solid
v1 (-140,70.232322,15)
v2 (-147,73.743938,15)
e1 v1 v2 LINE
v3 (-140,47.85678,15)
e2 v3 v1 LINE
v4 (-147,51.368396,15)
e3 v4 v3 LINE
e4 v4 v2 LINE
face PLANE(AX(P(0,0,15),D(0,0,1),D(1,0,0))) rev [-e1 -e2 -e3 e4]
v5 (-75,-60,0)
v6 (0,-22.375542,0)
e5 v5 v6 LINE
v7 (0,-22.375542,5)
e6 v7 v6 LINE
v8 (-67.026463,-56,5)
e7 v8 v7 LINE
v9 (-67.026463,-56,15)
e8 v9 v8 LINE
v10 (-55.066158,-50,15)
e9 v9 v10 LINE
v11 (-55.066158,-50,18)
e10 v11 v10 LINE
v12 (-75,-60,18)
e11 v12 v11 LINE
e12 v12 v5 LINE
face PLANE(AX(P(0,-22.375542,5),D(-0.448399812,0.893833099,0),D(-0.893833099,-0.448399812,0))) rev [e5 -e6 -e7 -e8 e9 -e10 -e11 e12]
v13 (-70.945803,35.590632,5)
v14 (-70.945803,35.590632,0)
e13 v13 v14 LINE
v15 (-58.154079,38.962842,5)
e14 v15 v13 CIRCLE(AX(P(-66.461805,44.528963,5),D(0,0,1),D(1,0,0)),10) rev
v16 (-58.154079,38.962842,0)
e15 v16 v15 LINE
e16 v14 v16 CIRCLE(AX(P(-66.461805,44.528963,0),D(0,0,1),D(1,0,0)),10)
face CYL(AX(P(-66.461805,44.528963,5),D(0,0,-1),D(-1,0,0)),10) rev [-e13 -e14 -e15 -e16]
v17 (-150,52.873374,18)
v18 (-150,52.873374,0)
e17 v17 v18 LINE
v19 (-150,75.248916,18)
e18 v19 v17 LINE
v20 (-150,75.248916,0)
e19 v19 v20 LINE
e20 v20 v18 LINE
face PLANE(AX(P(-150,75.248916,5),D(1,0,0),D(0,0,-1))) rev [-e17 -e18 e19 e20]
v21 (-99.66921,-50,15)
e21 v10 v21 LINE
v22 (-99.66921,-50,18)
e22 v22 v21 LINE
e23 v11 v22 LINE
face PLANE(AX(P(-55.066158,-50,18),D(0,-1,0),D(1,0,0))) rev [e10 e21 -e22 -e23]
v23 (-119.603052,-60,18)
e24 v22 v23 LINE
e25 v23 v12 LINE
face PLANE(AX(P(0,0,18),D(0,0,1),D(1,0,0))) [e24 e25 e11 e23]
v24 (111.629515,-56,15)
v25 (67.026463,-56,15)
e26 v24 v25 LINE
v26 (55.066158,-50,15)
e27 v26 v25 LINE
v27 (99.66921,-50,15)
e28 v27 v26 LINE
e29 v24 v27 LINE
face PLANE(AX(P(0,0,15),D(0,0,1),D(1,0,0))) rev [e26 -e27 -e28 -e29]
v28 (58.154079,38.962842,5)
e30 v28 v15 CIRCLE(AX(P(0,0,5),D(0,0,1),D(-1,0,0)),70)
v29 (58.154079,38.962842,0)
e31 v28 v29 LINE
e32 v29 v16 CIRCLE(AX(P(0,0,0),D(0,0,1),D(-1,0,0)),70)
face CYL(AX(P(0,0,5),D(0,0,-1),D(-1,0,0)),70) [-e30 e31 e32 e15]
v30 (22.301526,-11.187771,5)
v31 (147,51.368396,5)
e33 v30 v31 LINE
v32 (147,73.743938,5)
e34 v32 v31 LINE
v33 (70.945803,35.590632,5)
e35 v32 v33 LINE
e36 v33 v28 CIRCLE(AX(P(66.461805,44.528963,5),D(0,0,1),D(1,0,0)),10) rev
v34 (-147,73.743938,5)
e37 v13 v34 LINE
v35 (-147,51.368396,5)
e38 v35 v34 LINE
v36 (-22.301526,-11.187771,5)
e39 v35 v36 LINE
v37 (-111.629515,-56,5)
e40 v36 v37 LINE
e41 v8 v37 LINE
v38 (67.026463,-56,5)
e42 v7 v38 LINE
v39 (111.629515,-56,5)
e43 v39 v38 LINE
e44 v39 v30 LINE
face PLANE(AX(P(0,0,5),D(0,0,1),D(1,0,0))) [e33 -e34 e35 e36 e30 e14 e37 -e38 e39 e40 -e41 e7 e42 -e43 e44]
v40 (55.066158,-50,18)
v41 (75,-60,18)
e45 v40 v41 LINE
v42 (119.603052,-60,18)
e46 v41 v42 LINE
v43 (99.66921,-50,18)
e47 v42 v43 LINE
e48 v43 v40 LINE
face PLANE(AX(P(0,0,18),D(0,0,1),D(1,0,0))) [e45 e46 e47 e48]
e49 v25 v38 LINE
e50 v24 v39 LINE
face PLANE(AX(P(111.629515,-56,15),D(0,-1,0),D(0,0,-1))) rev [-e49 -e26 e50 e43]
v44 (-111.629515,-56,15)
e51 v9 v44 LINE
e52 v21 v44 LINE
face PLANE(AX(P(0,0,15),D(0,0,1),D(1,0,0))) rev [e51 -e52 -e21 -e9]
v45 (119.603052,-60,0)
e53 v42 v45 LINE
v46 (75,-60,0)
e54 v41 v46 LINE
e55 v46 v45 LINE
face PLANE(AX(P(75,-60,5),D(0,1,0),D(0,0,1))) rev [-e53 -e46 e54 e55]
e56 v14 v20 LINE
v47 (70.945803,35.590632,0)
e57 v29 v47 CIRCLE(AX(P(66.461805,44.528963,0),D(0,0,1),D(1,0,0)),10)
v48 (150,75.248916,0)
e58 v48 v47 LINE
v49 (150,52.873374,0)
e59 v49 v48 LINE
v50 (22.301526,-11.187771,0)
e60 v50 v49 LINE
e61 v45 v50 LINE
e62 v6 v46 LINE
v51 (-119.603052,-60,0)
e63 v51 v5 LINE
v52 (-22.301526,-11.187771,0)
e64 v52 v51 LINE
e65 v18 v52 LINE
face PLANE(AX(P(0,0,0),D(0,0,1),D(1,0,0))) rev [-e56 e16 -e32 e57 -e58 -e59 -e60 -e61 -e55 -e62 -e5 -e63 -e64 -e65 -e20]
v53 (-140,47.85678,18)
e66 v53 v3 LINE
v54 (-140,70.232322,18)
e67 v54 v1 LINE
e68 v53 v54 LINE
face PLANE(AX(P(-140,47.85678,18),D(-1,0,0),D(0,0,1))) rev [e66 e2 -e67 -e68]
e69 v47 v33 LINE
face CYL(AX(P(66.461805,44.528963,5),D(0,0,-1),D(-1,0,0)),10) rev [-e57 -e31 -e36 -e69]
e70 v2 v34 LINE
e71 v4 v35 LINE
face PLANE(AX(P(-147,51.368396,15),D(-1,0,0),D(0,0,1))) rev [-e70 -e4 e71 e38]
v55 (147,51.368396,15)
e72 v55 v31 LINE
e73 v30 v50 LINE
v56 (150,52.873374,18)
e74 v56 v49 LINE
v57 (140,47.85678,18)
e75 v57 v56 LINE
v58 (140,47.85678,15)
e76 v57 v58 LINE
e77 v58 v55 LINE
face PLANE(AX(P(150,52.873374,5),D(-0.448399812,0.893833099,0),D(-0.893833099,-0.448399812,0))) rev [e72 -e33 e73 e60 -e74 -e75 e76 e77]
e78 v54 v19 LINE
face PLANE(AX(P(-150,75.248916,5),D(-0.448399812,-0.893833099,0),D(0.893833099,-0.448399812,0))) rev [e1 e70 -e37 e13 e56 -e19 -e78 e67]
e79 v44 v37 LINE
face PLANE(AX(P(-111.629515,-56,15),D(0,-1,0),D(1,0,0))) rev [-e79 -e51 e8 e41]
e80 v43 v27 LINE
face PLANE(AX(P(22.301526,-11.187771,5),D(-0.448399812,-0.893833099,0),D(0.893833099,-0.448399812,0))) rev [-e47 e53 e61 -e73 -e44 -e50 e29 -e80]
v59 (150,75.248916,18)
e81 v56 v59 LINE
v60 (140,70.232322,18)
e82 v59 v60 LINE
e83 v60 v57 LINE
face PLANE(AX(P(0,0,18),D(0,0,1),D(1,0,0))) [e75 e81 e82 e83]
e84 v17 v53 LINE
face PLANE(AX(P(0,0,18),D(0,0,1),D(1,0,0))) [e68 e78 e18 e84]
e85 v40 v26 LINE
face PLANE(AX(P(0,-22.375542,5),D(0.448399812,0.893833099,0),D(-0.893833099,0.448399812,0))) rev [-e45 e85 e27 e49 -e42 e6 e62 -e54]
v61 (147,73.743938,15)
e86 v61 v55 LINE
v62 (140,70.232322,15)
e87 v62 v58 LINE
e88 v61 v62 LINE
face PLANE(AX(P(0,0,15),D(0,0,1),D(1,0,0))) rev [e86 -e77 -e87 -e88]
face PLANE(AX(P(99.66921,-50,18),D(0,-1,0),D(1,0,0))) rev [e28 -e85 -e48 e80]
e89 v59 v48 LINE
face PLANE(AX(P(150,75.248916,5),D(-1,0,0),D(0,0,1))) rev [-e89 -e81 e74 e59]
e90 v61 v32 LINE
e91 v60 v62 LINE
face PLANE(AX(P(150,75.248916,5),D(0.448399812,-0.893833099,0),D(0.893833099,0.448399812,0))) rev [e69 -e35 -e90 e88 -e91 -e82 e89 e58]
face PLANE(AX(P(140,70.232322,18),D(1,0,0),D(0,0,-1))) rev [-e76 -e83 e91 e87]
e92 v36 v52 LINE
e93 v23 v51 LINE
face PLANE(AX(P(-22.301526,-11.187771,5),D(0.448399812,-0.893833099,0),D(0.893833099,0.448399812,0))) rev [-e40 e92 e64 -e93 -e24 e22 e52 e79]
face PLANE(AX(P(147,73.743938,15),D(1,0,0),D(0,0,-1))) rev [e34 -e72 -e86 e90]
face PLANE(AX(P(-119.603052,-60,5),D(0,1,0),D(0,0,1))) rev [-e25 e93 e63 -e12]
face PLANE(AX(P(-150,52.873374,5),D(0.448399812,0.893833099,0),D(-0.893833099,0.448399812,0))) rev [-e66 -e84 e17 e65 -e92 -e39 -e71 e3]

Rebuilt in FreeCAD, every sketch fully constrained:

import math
import FreeCAD as App
import Part
import Sketcher
Q = App.Units.Quantity


def edges_at(feature, points):
    """Names of the edges that pass closest to the given points."""
    edges = feature.Shape.Edges
    near = lambda p: min(range(len(edges)), key=lambda i: edges[i].distToShape(Part.Vertex(*p))[0])
    return sorted({f"Edge{near(p) + 1}" for p in points})


def add_polygon(sketch, points):
    """Adds a closed chain of lines whose ends are joined by coincident constraints."""
    first, n = sketch.GeometryCount, len(points)
    for a, b in zip(points, points[1:] + points[:1]):
        sketch.addGeometry(Part.LineSegment(App.Vector(*a, 0), App.Vector(*b, 0)), False)
    for i in range(n):
        sketch.addConstraint(Sketcher.Constraint("Coincident", first + i, 2, first + (i + 1) % n, 1))

doc = App.newDocument("Part")
params = doc.addObject("Spreadsheet::Sheet", "Params")
for row, (alias, value) in enumerate([
    ("pad1_length", "5 mm"),
    ("pad2_length", "10 mm"),
    ("pad3_length", "3 mm"),
    ("sketch4_radius", "70 mm"),
    ("pad4_length", "5 mm"),
    ("fillet_radius", "10 mm"),
], start=1):
    params.set(f"A{row}", alias)
    params.set(f"B{row}", "=" + value)
    params.setAlias(f"B{row}", alias)

body = doc.addObject("PartDesign::Body", "Body")

# Sketch on XY plane
sketch1 = doc.addObject("Sketcher::SketchObject", "Sketch")
body.addObject(sketch1)
sketch1.AttachmentSupport = (doc.XY_Plane, [""])
sketch1.MapMode = "FlatFace"
add_polygon(sketch1, [(0, 0), (-150, 75), (-150, 53), (-22, -11), (-120, -60), (-75, -60), (0, -22), (75, -60), (120, -60), (22, -11), (150, 53), (150, 75)])  # lines 0-11
sketch1.addConstraint([
    Sketcher.Constraint("Vertical", 1),
    Sketcher.Constraint("Horizontal", 4),
    Sketcher.Constraint("Horizontal", 7),
    Sketcher.Constraint("Vertical", 10),
    Sketcher.Constraint("Coincident", 11, 2, -1, 1),
    Sketcher.Constraint("Symmetric", 4, 2, 6, 2, -2),
    Sketcher.Constraint("Symmetric", 2, 2, 8, 2, -2),
    Sketcher.Constraint("Symmetric", 1, 2, 9, 2, -2),
    Sketcher.Constraint("PointOnObject", 5, 2, -2),
    Sketcher.Constraint("Parallel", 0, 2),
    Sketcher.Constraint("Parallel", 3, 5),
    Sketcher.Constraint("Parallel", 2, 6),
    Sketcher.Constraint("Parallel", 6, 8),
    Sketcher.Constraint("Parallel", 9, 11),
    Sketcher.Constraint("DistanceX", 0, 2, -1, 1, Q("150 mm")),
    Sketcher.Constraint("DistanceY", 3, 2, -1, 1, Q("60 mm")),
    Sketcher.Constraint("DistanceX", 4, 2, -1, 1, Q("75 mm")),
    Sketcher.Constraint("DistanceX", 4, 1, 4, 2, Q("44.603052 mm")),
    Sketcher.Constraint("DistanceY", 1, 2, 1, 1, Q("22.375542 mm")),
    Sketcher.Constraint("Distance", 2, Q("142.866128 mm")),
])
pad1 = doc.addObject("PartDesign::Pad", "Pad")
body.addObject(pad1)
pad1.Profile = sketch1
pad1.setExpression("Length", "Params.pad1_length")

# Sketch on XY plane
sketch2 = doc.addObject("Sketcher::SketchObject", "Sketch001")
body.addObject(sketch2)
sketch2.AttachmentSupport = (doc.XY_Plane, [""])
sketch2.MapMode = "FlatFace"
sketch2.AttachmentOffset = App.Placement(App.Vector(0, 0, 5), App.Rotation())
add_polygon(sketch2, [(-150, 75.2), (-150, 52.9), (-147, 51.4), (-147, 73.7)])  # lines 0-3
add_polygon(sketch2, [(150, 75.2), (147, 73.7), (147, 51.4), (150, 52.9)])  # lines 4-7
add_polygon(sketch2, [(119.6, -60), (111.6, -56), (67, -56), (75, -60)])  # lines 8-11
add_polygon(sketch2, [(-119.6, -60), (-75, -60), (-67, -56), (-111.6, -56)])  # lines 12-15
sketch2.addConstraint([
    Sketcher.Constraint("Vertical", 0),
    Sketcher.Constraint("Vertical", 2),
    Sketcher.Constraint("Vertical", 5),
    Sketcher.Constraint("Vertical", 7),
    Sketcher.Constraint("Horizontal", 9),
    Sketcher.Constraint("Horizontal", 11),
    Sketcher.Constraint("Horizontal", 12),
    Sketcher.Constraint("Horizontal", 14),
    Sketcher.Constraint("Symmetric", 2, 2, 4, 2, -2),
    Sketcher.Constraint("Symmetric", 0, 2, 6, 2, -2),
    Sketcher.Constraint("Symmetric", 10, 2, 12, 2, -2),
    Sketcher.Constraint("Symmetric", 9, 2, 13, 2, -2),
    Sketcher.Constraint("Parallel", 1, 3),
    Sketcher.Constraint("Parallel", 4, 6),
    Sketcher.Constraint("Parallel", 3, 8),
    Sketcher.Constraint("Parallel", 8, 10),
    Sketcher.Constraint("Parallel", 6, 13),
    Sketcher.Constraint("Parallel", 13, 15),
    Sketcher.Constraint("Equal", 11, 12),
    Sketcher.Constraint("DistanceX", 0, 2, -1, 1, Q("150 mm")),
    Sketcher.Constraint("DistanceX", 1, 2, -1, 1, Q("147 mm")),
    Sketcher.Constraint("DistanceY", 8, 2, -1, 1, Q("56 mm")),
    Sketcher.Constraint("DistanceX", -1, 1, 10, 2, Q("75 mm")),
    Sketcher.Constraint("DistanceY", 10, 2, -1, 1, Q("60 mm")),
    Sketcher.Constraint("DistanceX", 9, 2, 9, 1, Q("44.603052 mm")),
    Sketcher.Constraint("DistanceY", 0, 2, 0, 1, Q("22.375542 mm")),
    Sketcher.Constraint("Distance", 1, Q("3.356331 mm")),
    Sketcher.Constraint("DistanceY", -1, 1, 0, 2, Q("52.873374 mm")),
])
pad2 = doc.addObject("PartDesign::Pad", "Pad001")
body.addObject(pad2)
pad2.Profile = sketch2
pad2.setExpression("Length", "Params.pad2_length")

# Sketch on XY plane
sketch3 = doc.addObject("Sketcher::SketchObject", "Sketch002")
body.addObject(sketch3)
sketch3.AttachmentSupport = (doc.XY_Plane, [""])
sketch3.MapMode = "FlatFace"
sketch3.AttachmentOffset = App.Placement(App.Vector(0, 0, 15), App.Rotation())
add_polygon(sketch3, [(-150, 75), (-150, 53), (-140, 48), (-140, 70)])  # lines 0-3
add_polygon(sketch3, [(-75, -60), (-55, -50), (-100, -50), (-120, -60)])  # lines 4-7
add_polygon(sketch3, [(75, -60), (120, -60), (100, -50), (55, -50)])  # lines 8-11
add_polygon(sketch3, [(150, 75), (140, 70), (140, 48), (150, 53)])  # lines 12-15
sketch3.addConstraint([
    Sketcher.Constraint("Vertical", 0),
    Sketcher.Constraint("Vertical", 2),
    Sketcher.Constraint("Horizontal", 5),
    Sketcher.Constraint("Horizontal", 7),
    Sketcher.Constraint("Horizontal", 8),
    Sketcher.Constraint("Horizontal", 10),
    Sketcher.Constraint("Vertical", 13),
    Sketcher.Constraint("Vertical", 15),
    Sketcher.Constraint("Symmetric", 6, 2, 8, 2, -2),
    Sketcher.Constraint("Symmetric", 5, 2, 9, 2, -2),
    Sketcher.Constraint("Symmetric", 2, 2, 12, 2, -2),
    Sketcher.Constraint("Symmetric", 0, 2, 14, 2, -2),
    Sketcher.Constraint("Parallel", 1, 3),
    Sketcher.Constraint("Parallel", 4, 6),
    Sketcher.Constraint("Parallel", 3, 9),
    Sketcher.Constraint("Parallel", 9, 11),
    Sketcher.Constraint("Parallel", 6, 12),
    Sketcher.Constraint("Parallel", 12, 14),
    Sketcher.Constraint("Equal", 7, 8),
    Sketcher.Constraint("DistanceX", 0, 2, -1, 1, Q("150 mm")),
    Sketcher.Constraint("DistanceX", 1, 2, -1, 1, Q("140 mm")),
    Sketcher.Constraint("DistanceY", 4, 2, -1, 1, Q("50 mm")),
    Sketcher.Constraint("DistanceY", 6, 2, -1, 1, Q("60 mm")),
    Sketcher.Constraint("DistanceX", 7, 2, -1, 1, Q("75 mm")),
    Sketcher.Constraint("DistanceX", 5, 2, 5, 1, Q("44.603052 mm")),
    Sketcher.Constraint("DistanceY", 0, 2, 0, 1, Q("22.375542 mm")),
    Sketcher.Constraint("Distance", 1, Q("11.187771 mm")),
    Sketcher.Constraint("DistanceY", -1, 1, 1, 2, Q("47.85678 mm")),
])
pad3 = doc.addObject("PartDesign::Pad", "Pad002")
body.addObject(pad3)
pad3.Profile = sketch3
pad3.setExpression("Length", "Params.pad3_length")

# Sketch on XY plane
sketch4 = doc.addObject("Sketcher::SketchObject", "Sketch003")
body.addObject(sketch4)
sketch4.AttachmentSupport = (doc.XY_Plane, [""])
sketch4.MapMode = "FlatFace"
sketch4.addGeometry([
    Part.LineSegment(App.Vector(-63, 31, 0), App.Vector(0, 0, 0)),
    Part.LineSegment(App.Vector(0, 0, 0), App.Vector(63, 31, 0)),
    Part.ArcOfCircle(Part.Circle(App.Vector(0, 0, 0), App.Vector(0, 0, 1), 70), math.radians(27), math.radians(153)),
], False)
sketch4.addConstraint([
    Sketcher.Constraint("Coincident", 0, 2, 1, 1),
    Sketcher.Constraint("Coincident", 1, 2, 2, 1),
    Sketcher.Constraint("Coincident", 2, 2, 0, 1),
    Sketcher.Constraint("Coincident", 2, 3, -1, 1),
    Sketcher.Constraint("Coincident", 0, 2, -1, 1),
    Sketcher.Constraint("Horizontal", 1, 2, 2, 2),
    Sketcher.Constraint("Radius", 2, Q("70 mm")),
    Sketcher.Constraint("DistanceX", -1, 1, 1, 2, Q("62.568317 mm")),
])
sketch4.setExpression("Constraints[6]", "Params.sketch4_radius")
pad4 = doc.addObject("PartDesign::Pad", "Pad003")
body.addObject(pad4)
pad4.Profile = sketch4
pad4.setExpression("Length", "Params.pad4_length")
doc.recompute()

fillet = doc.addObject("PartDesign::Fillet", "Fillet")
body.addObject(fillet)
fillet.Base = (pad4, edges_at(pad4, [(62.568, 31.388, 2.5), (-62.568, 31.388, 2.5)]))
fillet.setExpression("Radius", "Params.fillet_radius")

doc.recompute()
